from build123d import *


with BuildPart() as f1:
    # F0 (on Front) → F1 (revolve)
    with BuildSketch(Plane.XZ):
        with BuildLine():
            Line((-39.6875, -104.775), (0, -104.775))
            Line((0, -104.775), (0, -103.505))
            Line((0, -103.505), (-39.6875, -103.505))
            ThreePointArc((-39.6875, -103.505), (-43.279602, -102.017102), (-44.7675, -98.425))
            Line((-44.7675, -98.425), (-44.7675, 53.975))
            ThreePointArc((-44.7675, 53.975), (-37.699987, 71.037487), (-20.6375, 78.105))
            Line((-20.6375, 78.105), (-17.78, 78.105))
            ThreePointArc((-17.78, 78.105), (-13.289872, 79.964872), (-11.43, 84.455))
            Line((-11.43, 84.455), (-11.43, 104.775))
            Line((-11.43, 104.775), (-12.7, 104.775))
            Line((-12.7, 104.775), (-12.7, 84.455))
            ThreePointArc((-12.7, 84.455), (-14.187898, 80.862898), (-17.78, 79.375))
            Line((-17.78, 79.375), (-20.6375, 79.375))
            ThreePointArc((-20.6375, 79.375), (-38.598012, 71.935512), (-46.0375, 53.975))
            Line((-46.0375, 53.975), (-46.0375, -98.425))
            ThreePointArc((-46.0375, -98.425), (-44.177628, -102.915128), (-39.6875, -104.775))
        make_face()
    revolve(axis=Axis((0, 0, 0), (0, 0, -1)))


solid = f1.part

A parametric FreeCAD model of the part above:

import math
import FreeCAD as App
import Part
import Sketcher

V = App.Vector
Q = App.Units.Quantity

doc = App.newDocument("Part")
body = doc.addObject("PartDesign::Body", "Body")

# Sketch on XZ plane
sketch1 = doc.addObject("Sketcher::SketchObject", "Sketch")
body.addObject(sketch1)
sketch1.AttachmentSupport = (doc.XZ_Plane, [""])
sketch1.MapMode = "FlatFace"
sketch1.addGeometry([
    Part.LineSegment(V(-39.6875, -104.775, 0), V(0, -104.775, 0)),  # 0
    Part.LineSegment(V(0, -104.775, 0), V(0, -103.505, 0)),  # 1
    Part.LineSegment(V(0, -103.505, 0), V(-39.6875, -103.505, 0)),  # 2
    Part.ArcOfCircle(Part.Circle(V(-39.687498, -98.424998, 0), V(0, 0, 1), 5.080002), math.radians(-179.999983), math.radians(-90.000017)),  # 3
    Part.LineSegment(V(-44.7675, -98.425, 0), V(-44.7675, 53.975, 0)),  # 4
    Part.ArcOfCircle(Part.Circle(V(-20.637501, 53.975001, 0), V(0, 0, 1), 24.129999), math.radians(89.999997), math.radians(180.000003)),  # 5
    Part.LineSegment(V(-20.6375, 78.105, 0), V(-17.78, 78.105, 0)),  # 6
    Part.ArcOfCircle(Part.Circle(V(-17.78, 84.455, 0), V(0, 0, 1), 6.35), math.radians(-89.999998), math.radians(-0.000002)),  # 7
    Part.LineSegment(V(-11.43, 84.455, 0), V(-11.43, 104.775, 0)),  # 8
    Part.LineSegment(V(-11.43, 104.775, 0), V(-12.7, 104.775, 0)),  # 9
    Part.LineSegment(V(-12.7, 104.775, 0), V(-12.7, 84.455, 0)),  # 10
    Part.ArcOfCircle(Part.Circle(V(-17.780002, 84.455002, 0), V(0, 0, 1), 5.080002), math.radians(-89.999983), math.radians(-0.000017)),  # 11
    Part.LineSegment(V(-17.78, 79.375, 0), V(-20.6375, 79.375, 0)),  # 12
    Part.ArcOfCircle(Part.Circle(V(-20.637499, 53.974999, 0), V(0, 0, 1), 25.400001), math.radians(90.000002), math.radians(179.999998)),  # 13
    Part.LineSegment(V(-46.0375, 53.975, 0), V(-46.0375, -98.425, 0)),  # 14
    Part.ArcOfCircle(Part.Circle(V(-39.6875, -98.425, 0), V(0, 0, 1), 6.35), math.radians(-179.999998), math.radians(-90.000002)),  # 15
], False)
sketch1.addConstraint([
    Sketcher.Constraint("Coincident", 0, 2, 1, 1),
    Sketcher.Constraint("Coincident", 1, 2, 2, 1),
    Sketcher.Constraint("Tangent", 2, 2, 3, 2),
    Sketcher.Constraint("Tangent", 3, 1, 4, 1),
    Sketcher.Constraint("Tangent", 4, 2, 5, 2),
    Sketcher.Constraint("Tangent", 5, 1, 6, 1),
    Sketcher.Constraint("Tangent", 6, 2, 7, 1),
    Sketcher.Constraint("Tangent", 7, 2, 8, 1),
    Sketcher.Constraint("Coincident", 8, 2, 9, 1),
    Sketcher.Constraint("Coincident", 9, 2, 10, 1),
    Sketcher.Constraint("Tangent", 10, 2, 11, 2),
    Sketcher.Constraint("Tangent", 11, 1, 12, 1),
    Sketcher.Constraint("Tangent", 12, 2, 13, 1),
    Sketcher.Constraint("Tangent", 13, 2, 14, 1),
    Sketcher.Constraint("Tangent", 14, 2, 15, 1),
    Sketcher.Constraint("Tangent", 15, 2, 0, 1),
    Sketcher.Constraint("Horizontal", 0),
    Sketcher.Constraint("Vertical", 1),
    Sketcher.Constraint("Horizontal", 2),
    Sketcher.Constraint("Vertical", 4),
    Sketcher.Constraint("Horizontal", 6),
    Sketcher.Constraint("Vertical", 8),
    Sketcher.Constraint("Horizontal", 9),
    Sketcher.Constraint("Vertical", 10),
    Sketcher.Constraint("Horizontal", 12),
    Sketcher.Constraint("Vertical", 14),
    Sketcher.Constraint("Coincident", 11, 3, 7, 3),
    Sketcher.Constraint("Coincident", 13, 3, 5, 3),
    Sketcher.Constraint("Coincident", 15, 3, 3, 3),
    Sketcher.Constraint("Equal", 3, 11),
    Sketcher.Constraint("PointOnObject", 0, 2, -2),
    Sketcher.Constraint("Radius", 13, Q("1 in")),
    Sketcher.Constraint("Radius", 3, Q("0.2000001 in")),
    Sketcher.Constraint("DistanceY", 4, 1, 4, 2, Q("6 in")),
    Sketcher.Constraint("Radius", 5, Q("0.95 in")),
    Sketcher.Constraint("DistanceY", 8, 1, 8, 2, Q("0.8 in")),
    Sketcher.Constraint("DistanceX", 7, 3, -1, 1, Q("0.7 in")),
    Sketcher.Constraint("DistanceX", 0, 1, 0, 2, Q("1.5625 in")),
    Sketcher.Constraint("DistanceY", 3, 3, -1, 1, Q("3.8749999 in")),
])
revolution = doc.addObject("PartDesign::Revolution", "Revolution")
body.addObject(revolution)
revolution.Profile = sketch1
revolution.ReferenceAxis = (sketch1, ["V_Axis"])
revolution.Angle = 360

doc.recompute()
